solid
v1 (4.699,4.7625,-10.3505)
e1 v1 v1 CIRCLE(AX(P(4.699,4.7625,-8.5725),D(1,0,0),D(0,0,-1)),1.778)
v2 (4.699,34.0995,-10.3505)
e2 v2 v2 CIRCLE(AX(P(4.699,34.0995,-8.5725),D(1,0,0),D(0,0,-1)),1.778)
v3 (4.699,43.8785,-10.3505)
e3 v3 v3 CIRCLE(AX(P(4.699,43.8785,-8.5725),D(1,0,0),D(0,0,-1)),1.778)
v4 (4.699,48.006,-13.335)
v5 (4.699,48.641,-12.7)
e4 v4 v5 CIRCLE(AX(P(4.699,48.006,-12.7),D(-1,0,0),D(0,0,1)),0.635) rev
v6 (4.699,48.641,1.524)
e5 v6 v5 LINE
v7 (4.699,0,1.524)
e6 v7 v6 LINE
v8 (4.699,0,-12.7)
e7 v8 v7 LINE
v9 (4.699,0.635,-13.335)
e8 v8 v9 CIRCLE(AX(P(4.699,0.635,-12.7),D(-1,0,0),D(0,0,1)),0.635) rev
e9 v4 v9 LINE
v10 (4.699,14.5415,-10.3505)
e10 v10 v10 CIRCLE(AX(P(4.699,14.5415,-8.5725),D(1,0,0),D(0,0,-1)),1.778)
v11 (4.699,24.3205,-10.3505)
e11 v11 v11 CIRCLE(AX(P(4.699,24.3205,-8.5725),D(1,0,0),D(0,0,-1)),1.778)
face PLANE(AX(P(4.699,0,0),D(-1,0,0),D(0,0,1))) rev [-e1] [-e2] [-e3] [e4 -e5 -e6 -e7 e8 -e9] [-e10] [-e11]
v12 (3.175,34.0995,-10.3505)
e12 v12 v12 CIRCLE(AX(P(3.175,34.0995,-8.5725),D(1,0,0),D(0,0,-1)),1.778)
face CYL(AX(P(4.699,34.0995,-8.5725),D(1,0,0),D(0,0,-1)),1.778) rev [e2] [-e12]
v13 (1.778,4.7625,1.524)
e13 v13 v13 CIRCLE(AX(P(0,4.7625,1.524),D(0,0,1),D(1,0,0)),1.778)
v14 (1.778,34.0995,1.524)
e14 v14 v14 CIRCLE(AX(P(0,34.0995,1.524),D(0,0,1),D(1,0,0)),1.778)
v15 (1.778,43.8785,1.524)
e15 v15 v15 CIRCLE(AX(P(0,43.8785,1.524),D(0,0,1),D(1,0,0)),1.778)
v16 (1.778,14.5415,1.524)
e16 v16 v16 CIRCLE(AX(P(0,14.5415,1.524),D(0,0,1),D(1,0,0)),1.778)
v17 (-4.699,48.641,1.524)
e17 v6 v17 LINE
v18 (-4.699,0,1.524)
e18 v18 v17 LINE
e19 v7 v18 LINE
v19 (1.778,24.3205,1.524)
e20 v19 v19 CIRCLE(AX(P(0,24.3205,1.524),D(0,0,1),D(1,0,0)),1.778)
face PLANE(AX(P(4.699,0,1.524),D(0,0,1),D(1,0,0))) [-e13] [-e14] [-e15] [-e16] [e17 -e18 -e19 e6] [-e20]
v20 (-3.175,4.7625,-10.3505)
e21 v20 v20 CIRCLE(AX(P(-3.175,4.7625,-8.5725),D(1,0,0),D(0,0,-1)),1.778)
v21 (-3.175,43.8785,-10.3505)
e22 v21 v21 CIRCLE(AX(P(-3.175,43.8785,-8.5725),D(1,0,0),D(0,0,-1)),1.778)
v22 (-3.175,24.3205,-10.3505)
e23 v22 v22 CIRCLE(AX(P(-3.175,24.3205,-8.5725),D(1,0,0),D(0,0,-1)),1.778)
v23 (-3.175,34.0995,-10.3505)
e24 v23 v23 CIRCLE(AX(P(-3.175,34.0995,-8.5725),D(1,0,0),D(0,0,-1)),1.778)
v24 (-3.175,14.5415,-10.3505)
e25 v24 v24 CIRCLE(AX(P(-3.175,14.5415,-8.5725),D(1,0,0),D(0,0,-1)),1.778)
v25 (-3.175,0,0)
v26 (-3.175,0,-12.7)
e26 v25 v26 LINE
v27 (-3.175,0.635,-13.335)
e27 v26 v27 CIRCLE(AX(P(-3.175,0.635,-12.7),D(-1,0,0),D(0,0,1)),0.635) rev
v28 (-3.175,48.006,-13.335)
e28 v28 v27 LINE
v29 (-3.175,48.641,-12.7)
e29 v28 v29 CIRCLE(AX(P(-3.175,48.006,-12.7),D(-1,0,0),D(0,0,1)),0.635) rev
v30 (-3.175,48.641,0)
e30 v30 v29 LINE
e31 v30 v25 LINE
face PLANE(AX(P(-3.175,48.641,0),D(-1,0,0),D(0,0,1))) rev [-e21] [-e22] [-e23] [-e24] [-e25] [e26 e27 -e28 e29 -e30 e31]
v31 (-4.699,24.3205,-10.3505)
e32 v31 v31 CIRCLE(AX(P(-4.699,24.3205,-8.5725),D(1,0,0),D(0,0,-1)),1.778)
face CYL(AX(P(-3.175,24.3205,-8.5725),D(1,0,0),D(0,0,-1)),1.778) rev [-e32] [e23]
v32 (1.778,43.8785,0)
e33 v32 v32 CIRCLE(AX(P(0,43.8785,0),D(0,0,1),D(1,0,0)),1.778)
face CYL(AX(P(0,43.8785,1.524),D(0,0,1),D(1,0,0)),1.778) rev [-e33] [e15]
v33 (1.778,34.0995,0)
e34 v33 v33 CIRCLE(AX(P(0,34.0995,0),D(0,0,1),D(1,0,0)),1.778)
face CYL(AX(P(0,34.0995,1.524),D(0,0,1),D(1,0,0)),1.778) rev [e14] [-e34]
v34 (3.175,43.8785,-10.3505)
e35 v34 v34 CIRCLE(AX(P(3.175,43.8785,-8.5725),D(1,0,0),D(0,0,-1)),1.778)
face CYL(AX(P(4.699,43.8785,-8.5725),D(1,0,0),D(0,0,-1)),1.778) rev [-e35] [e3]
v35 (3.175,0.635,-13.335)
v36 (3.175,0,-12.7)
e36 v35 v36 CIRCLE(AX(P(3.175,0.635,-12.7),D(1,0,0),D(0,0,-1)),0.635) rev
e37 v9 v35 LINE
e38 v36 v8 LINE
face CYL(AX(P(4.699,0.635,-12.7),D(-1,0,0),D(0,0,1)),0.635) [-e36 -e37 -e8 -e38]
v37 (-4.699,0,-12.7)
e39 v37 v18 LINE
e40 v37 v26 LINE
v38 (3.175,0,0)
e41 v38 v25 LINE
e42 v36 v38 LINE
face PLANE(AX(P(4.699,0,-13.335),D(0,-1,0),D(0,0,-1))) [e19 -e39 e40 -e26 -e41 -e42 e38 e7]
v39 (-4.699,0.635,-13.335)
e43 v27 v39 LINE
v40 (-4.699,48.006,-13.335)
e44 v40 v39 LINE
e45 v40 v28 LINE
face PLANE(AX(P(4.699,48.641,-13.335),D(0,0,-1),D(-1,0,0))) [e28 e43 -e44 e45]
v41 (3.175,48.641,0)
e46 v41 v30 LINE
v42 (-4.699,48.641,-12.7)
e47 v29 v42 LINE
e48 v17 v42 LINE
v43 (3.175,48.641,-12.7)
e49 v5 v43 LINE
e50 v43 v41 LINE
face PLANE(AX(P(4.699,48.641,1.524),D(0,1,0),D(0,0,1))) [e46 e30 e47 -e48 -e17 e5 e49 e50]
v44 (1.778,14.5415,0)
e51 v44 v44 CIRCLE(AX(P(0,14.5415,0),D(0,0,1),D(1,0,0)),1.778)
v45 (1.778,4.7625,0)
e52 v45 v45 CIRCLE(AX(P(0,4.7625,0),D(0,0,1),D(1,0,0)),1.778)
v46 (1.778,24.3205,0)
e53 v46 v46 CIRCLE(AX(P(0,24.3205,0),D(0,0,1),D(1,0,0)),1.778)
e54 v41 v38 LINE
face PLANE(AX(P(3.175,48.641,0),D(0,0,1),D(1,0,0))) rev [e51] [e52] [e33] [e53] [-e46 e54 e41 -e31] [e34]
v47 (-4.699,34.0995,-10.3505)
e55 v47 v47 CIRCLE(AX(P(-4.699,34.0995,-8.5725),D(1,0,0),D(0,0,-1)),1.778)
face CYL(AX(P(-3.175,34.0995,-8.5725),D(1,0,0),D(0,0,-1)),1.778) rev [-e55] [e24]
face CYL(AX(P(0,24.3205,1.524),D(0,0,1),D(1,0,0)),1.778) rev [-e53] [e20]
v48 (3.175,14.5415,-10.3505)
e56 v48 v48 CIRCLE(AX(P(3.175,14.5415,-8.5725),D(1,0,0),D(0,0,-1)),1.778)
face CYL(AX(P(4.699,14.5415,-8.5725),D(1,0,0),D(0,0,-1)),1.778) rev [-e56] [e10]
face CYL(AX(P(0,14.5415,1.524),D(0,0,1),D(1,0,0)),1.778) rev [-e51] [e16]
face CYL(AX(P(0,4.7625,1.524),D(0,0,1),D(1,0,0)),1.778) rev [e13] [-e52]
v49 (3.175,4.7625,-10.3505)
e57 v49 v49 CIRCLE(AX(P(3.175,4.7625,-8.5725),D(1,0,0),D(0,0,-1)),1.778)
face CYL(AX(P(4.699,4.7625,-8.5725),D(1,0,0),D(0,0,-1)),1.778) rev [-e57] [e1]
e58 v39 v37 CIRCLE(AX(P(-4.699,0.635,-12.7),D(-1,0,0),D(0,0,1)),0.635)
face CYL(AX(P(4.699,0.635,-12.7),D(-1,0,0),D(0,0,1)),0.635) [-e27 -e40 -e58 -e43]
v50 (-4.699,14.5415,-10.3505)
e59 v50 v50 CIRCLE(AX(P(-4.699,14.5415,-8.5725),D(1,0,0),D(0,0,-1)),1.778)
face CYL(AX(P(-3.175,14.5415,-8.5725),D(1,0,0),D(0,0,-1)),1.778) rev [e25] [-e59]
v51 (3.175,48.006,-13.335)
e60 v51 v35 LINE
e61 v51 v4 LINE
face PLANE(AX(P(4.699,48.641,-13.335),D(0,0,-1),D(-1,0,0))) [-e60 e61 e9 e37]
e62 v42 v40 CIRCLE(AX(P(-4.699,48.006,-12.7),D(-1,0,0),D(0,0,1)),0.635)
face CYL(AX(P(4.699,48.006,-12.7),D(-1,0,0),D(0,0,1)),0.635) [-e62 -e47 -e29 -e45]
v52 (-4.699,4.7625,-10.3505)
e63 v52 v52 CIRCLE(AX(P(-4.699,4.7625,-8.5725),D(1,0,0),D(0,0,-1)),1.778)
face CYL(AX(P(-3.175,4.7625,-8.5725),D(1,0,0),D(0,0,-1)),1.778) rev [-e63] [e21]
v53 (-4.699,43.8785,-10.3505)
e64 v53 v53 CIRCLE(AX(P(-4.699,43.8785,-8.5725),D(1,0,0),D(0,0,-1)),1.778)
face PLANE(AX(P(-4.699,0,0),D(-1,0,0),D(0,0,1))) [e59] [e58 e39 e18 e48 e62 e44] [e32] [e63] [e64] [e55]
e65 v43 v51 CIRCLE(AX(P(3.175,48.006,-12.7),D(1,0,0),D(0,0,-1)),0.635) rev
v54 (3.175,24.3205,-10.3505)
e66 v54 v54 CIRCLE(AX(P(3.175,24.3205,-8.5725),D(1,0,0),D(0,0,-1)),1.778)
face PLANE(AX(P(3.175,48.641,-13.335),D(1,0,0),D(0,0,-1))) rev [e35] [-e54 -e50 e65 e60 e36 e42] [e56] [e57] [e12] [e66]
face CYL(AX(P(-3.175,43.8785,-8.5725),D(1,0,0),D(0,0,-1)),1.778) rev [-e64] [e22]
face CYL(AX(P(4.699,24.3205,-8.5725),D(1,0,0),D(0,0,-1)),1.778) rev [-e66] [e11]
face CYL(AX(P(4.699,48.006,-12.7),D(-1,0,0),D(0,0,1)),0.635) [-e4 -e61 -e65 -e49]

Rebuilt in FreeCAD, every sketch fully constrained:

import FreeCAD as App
import Part
import Sketcher
Q = App.Units.Quantity


def edges_at(feature, points):
    """Names of the edges that pass closest to the given points."""
    edges = feature.Shape.Edges
    near = lambda p: min(range(len(edges)), key=lambda i: edges[i].distToShape(Part.Vertex(*p))[0])
    return sorted({f"Edge{near(p) + 1}" for p in points})

doc = App.newDocument("Part")
body = doc.addObject("PartDesign::Body", "Body")

sketch1 = body.newObject("Sketcher::SketchObject", "Sketch")
sketch1.AttachmentSupport = (doc.getObject("YZ_Plane"), [""])
sketch1.MapMode = "FlatFace"
sketch1.AttachmentOffset = App.Placement(App.Vector(0, 0, -0.185 * 25.4), App.Rotation())
sketch1.addGeometry(Part.LineSegment(App.Vector(49, 2, 0), App.Vector(49, -13, 0)), False)
sketch1.addGeometry(Part.LineSegment(App.Vector(49, -13, 0), App.Vector(0, -13, 0)), False)
sketch1.addGeometry(Part.LineSegment(App.Vector(0, -13, 0), App.Vector(0, 2, 0)), False)
sketch1.addGeometry(Part.LineSegment(App.Vector(0, 2, 0), App.Vector(49, 2, 0)), False)
sketch1.addConstraint(Sketcher.Constraint("Coincident", 0, 2, 1, 1))
sketch1.addConstraint(Sketcher.Constraint("Coincident", 1, 2, 2, 1))
sketch1.addConstraint(Sketcher.Constraint("Coincident", 2, 2, 3, 1))
sketch1.addConstraint(Sketcher.Constraint("Coincident", 3, 2, 0, 1))
sketch1.addConstraint(Sketcher.Constraint("Vertical", 0))
sketch1.addConstraint(Sketcher.Constraint("Horizontal", 1))
sketch1.addConstraint(Sketcher.Constraint("Vertical", 2))
sketch1.addConstraint(Sketcher.Constraint("Horizontal", 3))
sketch1.addConstraint(Sketcher.Constraint("PointOnObject", 1, 2, -2))
sketch1.addConstraint(Sketcher.Constraint("DistanceX", 1, 2, 1, 1, Q("1.915 in")))
sketch1.addConstraint(Sketcher.Constraint("DistanceY", 0, 2, 0, 1, Q("0.585 in")))
sketch1.addConstraint(Sketcher.Constraint("DistanceY", -1, 1, 2, 2, Q("0.06 in")))
pad1 = body.newObject("PartDesign::Pad", "Pad")
pad1.Profile = sketch1
pad1.Length = Q("0.37 in")

sketch2 = body.newObject("Sketcher::SketchObject", "Sketch001")
sketch2.AttachmentSupport = (doc.getObject("XZ_Plane"), [""])
sketch2.MapMode = "FlatFace"
sketch2.addGeometry(Part.LineSegment(App.Vector(-3, 0, 0), App.Vector(-3, -13, 0)), False)
sketch2.addGeometry(Part.LineSegment(App.Vector(-3, -13, 0), App.Vector(3, -13, 0)), False)
sketch2.addGeometry(Part.LineSegment(App.Vector(3, -13, 0), App.Vector(3, 0, 0)), False)
sketch2.addGeometry(Part.LineSegment(App.Vector(3, 0, 0), App.Vector(-3, 0, 0)), False)
sketch2.addConstraint(Sketcher.Constraint("Coincident", 0, 2, 1, 1))
sketch2.addConstraint(Sketcher.Constraint("Coincident", 1, 2, 2, 1))
sketch2.addConstraint(Sketcher.Constraint("Coincident", 2, 2, 3, 1))
sketch2.addConstraint(Sketcher.Constraint("Coincident", 3, 2, 0, 1))
sketch2.addConstraint(Sketcher.Constraint("Vertical", 0))
sketch2.addConstraint(Sketcher.Constraint("Horizontal", 1))
sketch2.addConstraint(Sketcher.Constraint("Vertical", 2))
sketch2.addConstraint(Sketcher.Constraint("Horizontal", 3))
sketch2.addConstraint(Sketcher.Constraint("Symmetric", 2, 2, 3, 2, -1, 1))
sketch2.addConstraint(Sketcher.Constraint("DistanceX", 1, 1, 1, 2, Q("0.25 in")))
sketch2.addConstraint(Sketcher.Constraint("DistanceY", 0, 2, 0, 1, Q("0.525 in")))
pocket1 = body.newObject("PartDesign::Pocket", "Pocket")
pocket1.Profile = sketch2
pocket1.Type = "ThroughAll"

sketch3 = body.newObject("Sketcher::SketchObject", "Sketch002")
sketch3.AttachmentSupport = (doc.getObject("YZ_Plane"), [""])
sketch3.MapMode = "FlatFace"
sketch3.AttachmentOffset = App.Placement(App.Vector(0, 0, 0.185 * 25.4), App.Rotation())
sketch3.addGeometry(Part.Circle(App.Vector(34.1, -8.6, 0), App.Vector(0, 0, 1), 1.8), False)
sketch3.addGeometry(Part.Circle(App.Vector(43.9, -8.6, 0), App.Vector(0, 0, 1), 1.8), False)
sketch3.addGeometry(Part.Circle(App.Vector(24.3, -8.6, 0), App.Vector(0, 0, 1), 1.8), False)
sketch3.addGeometry(Part.Circle(App.Vector(14.5, -8.6, 0), App.Vector(0, 0, 1), 1.8), False)
sketch3.addGeometry(Part.Circle(App.Vector(4.8, -8.6, 0), App.Vector(0, 0, 1), 1.8), False)
sketch3.addConstraint(Sketcher.Constraint("Equal", 0, 1))
sketch3.addConstraint(Sketcher.Constraint("Equal", 1, 2))
sketch3.addConstraint(Sketcher.Constraint("Equal", 2, 3))
sketch3.addConstraint(Sketcher.Constraint("Equal", 3, 4))
sketch3.addConstraint(Sketcher.Constraint("Horizontal", 0, 3, 1, 3))
sketch3.addConstraint(Sketcher.Constraint("Horizontal", 1, 3, 2, 3))
sketch3.addConstraint(Sketcher.Constraint("Horizontal", 2, 3, 3, 3))
sketch3.addConstraint(Sketcher.Constraint("Horizontal", 3, 3, 4, 3))
sketch3.addConstraint(Sketcher.Constraint("Diameter", 0, Q("0.14 in")))
sketch3.addConstraint(Sketcher.Constraint("DistanceX", 2, 3, 1, 3, Q("0.77 in")))
sketch3.addConstraint(Sketcher.Constraint("DistanceX", 3, 3, 0, 3, Q("0.77 in")))
sketch3.addConstraint(Sketcher.Constraint("DistanceX", 4, 3, 2, 3, Q("0.77 in")))
sketch3.addConstraint(Sketcher.Constraint("DistanceX", -1, 1, 4, 3, Q("0.1875 in")))
sketch3.addConstraint(Sketcher.Constraint("DistanceX", 0, 3, 1, 3, Q("0.385 in")))
sketch3.addConstraint(Sketcher.Constraint("DistanceY", 0, 3, -1, 1, Q("0.3375 in")))
doc.recompute()
hole = body.newObject("PartDesign::Hole", "Hole")
hole.Profile = sketch3
hole.ThreadType = "None"
hole.Diameter = Q("0.14 in")
hole.DepthType = "Dimension"
hole.Depth = Q("0.06 in")
hole.DrillPoint = "Flat"

sketch4 = body.newObject("Sketcher::SketchObject", "Sketch003")
sketch4.AttachmentSupport = (doc.getObject("XY_Plane"), [""])
sketch4.MapMode = "FlatFace"
sketch4.AttachmentOffset = App.Placement(App.Vector(0, 0, 0.06 * 25.4), App.Rotation())
sketch4.addGeometry(Part.Circle(App.Vector(0, 34.1, 0), App.Vector(0, 0, 1), 1.8), False)
sketch4.addGeometry(Part.Circle(App.Vector(0, 43.9, 0), App.Vector(0, 0, 1), 1.8), False)
sketch4.addGeometry(Part.Circle(App.Vector(0, 24.3, 0), App.Vector(0, 0, 1), 1.8), False)
sketch4.addGeometry(Part.Circle(App.Vector(0, 14.5, 0), App.Vector(0, 0, 1), 1.8), False)
sketch4.addGeometry(Part.Circle(App.Vector(0, 4.8, 0), App.Vector(0, 0, 1), 1.8), False)
sketch4.addConstraint(Sketcher.Constraint("Equal", 0, 1))
sketch4.addConstraint(Sketcher.Constraint("Equal", 1, 2))
sketch4.addConstraint(Sketcher.Constraint("Equal", 2, 3))
sketch4.addConstraint(Sketcher.Constraint("Equal", 3, 4))
sketch4.addConstraint(Sketcher.Constraint("PointOnObject", 0, 3, -2))
sketch4.addConstraint(Sketcher.Constraint("PointOnObject", 1, 3, -2))
sketch4.addConstraint(Sketcher.Constraint("PointOnObject", 2, 3, -2))
sketch4.addConstraint(Sketcher.Constraint("PointOnObject", 3, 3, -2))
sketch4.addConstraint(Sketcher.Constraint("PointOnObject", 4, 3, -2))
sketch4.addConstraint(Sketcher.Constraint("Diameter", 0, Q("0.14 in")))
sketch4.addConstraint(Sketcher.Constraint("DistanceY", 2, 3, 1, 3, Q("0.77 in")))
sketch4.addConstraint(Sketcher.Constraint("DistanceY", 3, 3, 0, 3, Q("0.77 in")))
sketch4.addConstraint(Sketcher.Constraint("DistanceY", 4, 3, 2, 3, Q("0.77 in")))
sketch4.addConstraint(Sketcher.Constraint("DistanceY", -1, 1, 4, 3, Q("0.1875 in")))
sketch4.addConstraint(Sketcher.Constraint("DistanceY", 0, 3, 1, 3, Q("0.385 in")))
doc.recompute()
hole2 = body.newObject("PartDesign::Hole", "Hole001")
hole2.Profile = sketch4
hole2.ThreadType = "None"
hole2.Diameter = Q("0.14 in")
hole2.DepthType = "Dimension"
hole2.Depth = Q("0.585 in")
hole2.DrillPoint = "Flat"

sketch5 = body.newObject("Sketcher::SketchObject", "Sketch004")
sketch5.AttachmentSupport = (doc.getObject("YZ_Plane"), [""])
sketch5.MapMode = "FlatFace"
sketch5.AttachmentOffset = App.Placement(App.Vector(0, 0, -0.125 * 25.4), App.Rotation())
sketch5.addGeometry(Part.Circle(App.Vector(34.1, -8.6, 0), App.Vector(0, 0, 1), 1.8), False)
sketch5.addGeometry(Part.Circle(App.Vector(43.9, -8.6, 0), App.Vector(0, 0, 1), 1.8), False)
sketch5.addGeometry(Part.Circle(App.Vector(24.3, -8.6, 0), App.Vector(0, 0, 1), 1.8), False)
sketch5.addGeometry(Part.Circle(App.Vector(14.5, -8.6, 0), App.Vector(0, 0, 1), 1.8), False)
sketch5.addGeometry(Part.Circle(App.Vector(4.8, -8.6, 0), App.Vector(0, 0, 1), 1.8), False)
sketch5.addConstraint(Sketcher.Constraint("Equal", 0, 1))
sketch5.addConstraint(Sketcher.Constraint("Equal", 1, 2))
sketch5.addConstraint(Sketcher.Constraint("Equal", 2, 3))
sketch5.addConstraint(Sketcher.Constraint("Equal", 3, 4))
sketch5.addConstraint(Sketcher.Constraint("Horizontal", 0, 3, 1, 3))
sketch5.addConstraint(Sketcher.Constraint("Horizontal", 1, 3, 2, 3))
sketch5.addConstraint(Sketcher.Constraint("Horizontal", 2, 3, 3, 3))
sketch5.addConstraint(Sketcher.Constraint("Horizontal", 3, 3, 4, 3))
sketch5.addConstraint(Sketcher.Constraint("Diameter", 0, Q("0.14 in")))
sketch5.addConstraint(Sketcher.Constraint("DistanceX", 2, 3, 1, 3, Q("0.77 in")))
sketch5.addConstraint(Sketcher.Constraint("DistanceX", 3, 3, 0, 3, Q("0.77 in")))
sketch5.addConstraint(Sketcher.Constraint("DistanceX", 4, 3, 2, 3, Q("0.77 in")))
sketch5.addConstraint(Sketcher.Constraint("DistanceX", -1, 1, 4, 3, Q("0.1875 in")))
sketch5.addConstraint(Sketcher.Constraint("DistanceX", 0, 3, 1, 3, Q("0.385 in")))
sketch5.addConstraint(Sketcher.Constraint("DistanceY", 0, 3, -1, 1, Q("0.3375 in")))
doc.recompute()
hole3 = body.newObject("PartDesign::Hole", "Hole002")
hole3.Profile = sketch5
hole3.ThreadType = "None"
hole3.Diameter = Q("0.14 in")
hole3.DepthType = "ThroughAll"
doc.recompute()

fillet = body.newObject("PartDesign::Fillet", "Fillet")
fillet.Base = (hole3, edges_at(hole3, [
    (-3.937, 48.641, -13.335),
    (-3.937, 0, -13.335),
    (3.937, 0, -13.335),
    (3.937, 48.641, -13.335),
]))
fillet.Radius = Q("0.025 in")

doc.recompute()
